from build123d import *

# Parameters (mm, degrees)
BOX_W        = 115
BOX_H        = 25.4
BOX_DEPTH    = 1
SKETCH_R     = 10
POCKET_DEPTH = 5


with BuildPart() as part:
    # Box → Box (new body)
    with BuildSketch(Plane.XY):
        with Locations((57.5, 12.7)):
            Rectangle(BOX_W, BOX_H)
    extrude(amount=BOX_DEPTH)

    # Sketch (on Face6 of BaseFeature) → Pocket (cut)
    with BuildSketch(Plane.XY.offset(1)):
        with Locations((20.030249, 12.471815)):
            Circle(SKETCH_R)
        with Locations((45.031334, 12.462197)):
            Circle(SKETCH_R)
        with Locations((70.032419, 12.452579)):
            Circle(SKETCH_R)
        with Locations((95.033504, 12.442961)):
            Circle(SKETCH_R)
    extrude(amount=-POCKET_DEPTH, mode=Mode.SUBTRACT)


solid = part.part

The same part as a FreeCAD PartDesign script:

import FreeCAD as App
import Part
import Sketcher
from FreeCAD import Vector


def add_polygon(sketch, points):
    """Adds a closed chain of lines whose ends are joined by coincident constraints."""
    first, n = sketch.GeometryCount, len(points)
    for a, b in zip(points, points[1:] + points[:1]):
        sketch.addGeometry(Part.LineSegment(App.Vector(*a, 0), App.Vector(*b, 0)), False)
    for i in range(n):
        sketch.addConstraint(Sketcher.Constraint("Coincident", first + i, 2, first + (i + 1) % n, 1))

doc = App.newDocument("Part")
body = doc.addObject("PartDesign::Body", "Body")

# Sketch on XY plane
sketch1 = doc.addObject("Sketcher::SketchObject", "Sketch")
body.addObject(sketch1)
sketch1.AttachmentSupport = (doc.XY_Plane, [""])
sketch1.MapMode = "FlatFace"
add_polygon(sketch1, [(0, 25), (0, 0), (115, 0), (115, 25)])  # lines 0-3
sketch1.addConstraint([
    Sketcher.Constraint("Vertical", 0),
    Sketcher.Constraint("Horizontal", 1),
    Sketcher.Constraint("Vertical", 2),
    Sketcher.Constraint("Horizontal", 3),
    Sketcher.Constraint("Coincident", 0, 2, -1, 1),
    Sketcher.Constraint("DistanceX", 1, 1, 1, 2, 115.0),
    Sketcher.Constraint("DistanceY", 0, 2, 0, 1, 25.4),
])
pad1 = doc.addObject("PartDesign::Pad", "Pad")
body.addObject(pad1)
pad1.Profile = sketch1
pad1.Length = 1

# Sketch on XY plane
sketch2 = doc.addObject("Sketcher::SketchObject", "Sketch001")
body.addObject(sketch2)
sketch2.AttachmentSupport = (doc.XY_Plane, [""])
sketch2.MapMode = "FlatFace"
sketch2.AttachmentOffset = App.Placement(Vector(0, 0, 1), App.Rotation())
sketch2.addGeometry([
    Part.Circle(Vector(20, 12, 0), Vector(0, 0, 1), 10),
    Part.Circle(Vector(45, 12, 0), Vector(0, 0, 1), 10),
    Part.Circle(Vector(70, 12, 0), Vector(0, 0, 1), 10),
    Part.Circle(Vector(95, 12, 0), Vector(0, 0, 1), 10),
], False)
sketch2.addConstraint([
    Sketcher.Constraint("Equal", 0, 1),
    Sketcher.Constraint("Equal", 1, 2),
    Sketcher.Constraint("Equal", 2, 3),
    Sketcher.Constraint("Diameter", 0, 20.0),
    Sketcher.Constraint("DistanceX", -1, 1, 0, 3, 20.030249),
    Sketcher.Constraint("DistanceX", -1, 1, 2, 3, 70.032419),
    Sketcher.Constraint("DistanceY", -1, 1, 2, 3, 12.452579),
    Sketcher.Constraint("DistanceY", -1, 1, 3, 3, 12.442961),
    Sketcher.Constraint("DistanceX", 1, 3, 3, 3, 50.00217),
    Sketcher.Constraint("DistanceY", -1, 1, 0, 3, 12.471815),
    Sketcher.Constraint("DistanceX", -1, 1, 1, 3, 45.031334),
    Sketcher.Constraint("DistanceY", -1, 1, 1, 3, 12.462197),
])
pocket1 = doc.addObject("PartDesign::Pocket", "Pocket")
body.addObject(pocket1)
pocket1.Profile = sketch2
pocket1.Length = 5

doc.recompute()
